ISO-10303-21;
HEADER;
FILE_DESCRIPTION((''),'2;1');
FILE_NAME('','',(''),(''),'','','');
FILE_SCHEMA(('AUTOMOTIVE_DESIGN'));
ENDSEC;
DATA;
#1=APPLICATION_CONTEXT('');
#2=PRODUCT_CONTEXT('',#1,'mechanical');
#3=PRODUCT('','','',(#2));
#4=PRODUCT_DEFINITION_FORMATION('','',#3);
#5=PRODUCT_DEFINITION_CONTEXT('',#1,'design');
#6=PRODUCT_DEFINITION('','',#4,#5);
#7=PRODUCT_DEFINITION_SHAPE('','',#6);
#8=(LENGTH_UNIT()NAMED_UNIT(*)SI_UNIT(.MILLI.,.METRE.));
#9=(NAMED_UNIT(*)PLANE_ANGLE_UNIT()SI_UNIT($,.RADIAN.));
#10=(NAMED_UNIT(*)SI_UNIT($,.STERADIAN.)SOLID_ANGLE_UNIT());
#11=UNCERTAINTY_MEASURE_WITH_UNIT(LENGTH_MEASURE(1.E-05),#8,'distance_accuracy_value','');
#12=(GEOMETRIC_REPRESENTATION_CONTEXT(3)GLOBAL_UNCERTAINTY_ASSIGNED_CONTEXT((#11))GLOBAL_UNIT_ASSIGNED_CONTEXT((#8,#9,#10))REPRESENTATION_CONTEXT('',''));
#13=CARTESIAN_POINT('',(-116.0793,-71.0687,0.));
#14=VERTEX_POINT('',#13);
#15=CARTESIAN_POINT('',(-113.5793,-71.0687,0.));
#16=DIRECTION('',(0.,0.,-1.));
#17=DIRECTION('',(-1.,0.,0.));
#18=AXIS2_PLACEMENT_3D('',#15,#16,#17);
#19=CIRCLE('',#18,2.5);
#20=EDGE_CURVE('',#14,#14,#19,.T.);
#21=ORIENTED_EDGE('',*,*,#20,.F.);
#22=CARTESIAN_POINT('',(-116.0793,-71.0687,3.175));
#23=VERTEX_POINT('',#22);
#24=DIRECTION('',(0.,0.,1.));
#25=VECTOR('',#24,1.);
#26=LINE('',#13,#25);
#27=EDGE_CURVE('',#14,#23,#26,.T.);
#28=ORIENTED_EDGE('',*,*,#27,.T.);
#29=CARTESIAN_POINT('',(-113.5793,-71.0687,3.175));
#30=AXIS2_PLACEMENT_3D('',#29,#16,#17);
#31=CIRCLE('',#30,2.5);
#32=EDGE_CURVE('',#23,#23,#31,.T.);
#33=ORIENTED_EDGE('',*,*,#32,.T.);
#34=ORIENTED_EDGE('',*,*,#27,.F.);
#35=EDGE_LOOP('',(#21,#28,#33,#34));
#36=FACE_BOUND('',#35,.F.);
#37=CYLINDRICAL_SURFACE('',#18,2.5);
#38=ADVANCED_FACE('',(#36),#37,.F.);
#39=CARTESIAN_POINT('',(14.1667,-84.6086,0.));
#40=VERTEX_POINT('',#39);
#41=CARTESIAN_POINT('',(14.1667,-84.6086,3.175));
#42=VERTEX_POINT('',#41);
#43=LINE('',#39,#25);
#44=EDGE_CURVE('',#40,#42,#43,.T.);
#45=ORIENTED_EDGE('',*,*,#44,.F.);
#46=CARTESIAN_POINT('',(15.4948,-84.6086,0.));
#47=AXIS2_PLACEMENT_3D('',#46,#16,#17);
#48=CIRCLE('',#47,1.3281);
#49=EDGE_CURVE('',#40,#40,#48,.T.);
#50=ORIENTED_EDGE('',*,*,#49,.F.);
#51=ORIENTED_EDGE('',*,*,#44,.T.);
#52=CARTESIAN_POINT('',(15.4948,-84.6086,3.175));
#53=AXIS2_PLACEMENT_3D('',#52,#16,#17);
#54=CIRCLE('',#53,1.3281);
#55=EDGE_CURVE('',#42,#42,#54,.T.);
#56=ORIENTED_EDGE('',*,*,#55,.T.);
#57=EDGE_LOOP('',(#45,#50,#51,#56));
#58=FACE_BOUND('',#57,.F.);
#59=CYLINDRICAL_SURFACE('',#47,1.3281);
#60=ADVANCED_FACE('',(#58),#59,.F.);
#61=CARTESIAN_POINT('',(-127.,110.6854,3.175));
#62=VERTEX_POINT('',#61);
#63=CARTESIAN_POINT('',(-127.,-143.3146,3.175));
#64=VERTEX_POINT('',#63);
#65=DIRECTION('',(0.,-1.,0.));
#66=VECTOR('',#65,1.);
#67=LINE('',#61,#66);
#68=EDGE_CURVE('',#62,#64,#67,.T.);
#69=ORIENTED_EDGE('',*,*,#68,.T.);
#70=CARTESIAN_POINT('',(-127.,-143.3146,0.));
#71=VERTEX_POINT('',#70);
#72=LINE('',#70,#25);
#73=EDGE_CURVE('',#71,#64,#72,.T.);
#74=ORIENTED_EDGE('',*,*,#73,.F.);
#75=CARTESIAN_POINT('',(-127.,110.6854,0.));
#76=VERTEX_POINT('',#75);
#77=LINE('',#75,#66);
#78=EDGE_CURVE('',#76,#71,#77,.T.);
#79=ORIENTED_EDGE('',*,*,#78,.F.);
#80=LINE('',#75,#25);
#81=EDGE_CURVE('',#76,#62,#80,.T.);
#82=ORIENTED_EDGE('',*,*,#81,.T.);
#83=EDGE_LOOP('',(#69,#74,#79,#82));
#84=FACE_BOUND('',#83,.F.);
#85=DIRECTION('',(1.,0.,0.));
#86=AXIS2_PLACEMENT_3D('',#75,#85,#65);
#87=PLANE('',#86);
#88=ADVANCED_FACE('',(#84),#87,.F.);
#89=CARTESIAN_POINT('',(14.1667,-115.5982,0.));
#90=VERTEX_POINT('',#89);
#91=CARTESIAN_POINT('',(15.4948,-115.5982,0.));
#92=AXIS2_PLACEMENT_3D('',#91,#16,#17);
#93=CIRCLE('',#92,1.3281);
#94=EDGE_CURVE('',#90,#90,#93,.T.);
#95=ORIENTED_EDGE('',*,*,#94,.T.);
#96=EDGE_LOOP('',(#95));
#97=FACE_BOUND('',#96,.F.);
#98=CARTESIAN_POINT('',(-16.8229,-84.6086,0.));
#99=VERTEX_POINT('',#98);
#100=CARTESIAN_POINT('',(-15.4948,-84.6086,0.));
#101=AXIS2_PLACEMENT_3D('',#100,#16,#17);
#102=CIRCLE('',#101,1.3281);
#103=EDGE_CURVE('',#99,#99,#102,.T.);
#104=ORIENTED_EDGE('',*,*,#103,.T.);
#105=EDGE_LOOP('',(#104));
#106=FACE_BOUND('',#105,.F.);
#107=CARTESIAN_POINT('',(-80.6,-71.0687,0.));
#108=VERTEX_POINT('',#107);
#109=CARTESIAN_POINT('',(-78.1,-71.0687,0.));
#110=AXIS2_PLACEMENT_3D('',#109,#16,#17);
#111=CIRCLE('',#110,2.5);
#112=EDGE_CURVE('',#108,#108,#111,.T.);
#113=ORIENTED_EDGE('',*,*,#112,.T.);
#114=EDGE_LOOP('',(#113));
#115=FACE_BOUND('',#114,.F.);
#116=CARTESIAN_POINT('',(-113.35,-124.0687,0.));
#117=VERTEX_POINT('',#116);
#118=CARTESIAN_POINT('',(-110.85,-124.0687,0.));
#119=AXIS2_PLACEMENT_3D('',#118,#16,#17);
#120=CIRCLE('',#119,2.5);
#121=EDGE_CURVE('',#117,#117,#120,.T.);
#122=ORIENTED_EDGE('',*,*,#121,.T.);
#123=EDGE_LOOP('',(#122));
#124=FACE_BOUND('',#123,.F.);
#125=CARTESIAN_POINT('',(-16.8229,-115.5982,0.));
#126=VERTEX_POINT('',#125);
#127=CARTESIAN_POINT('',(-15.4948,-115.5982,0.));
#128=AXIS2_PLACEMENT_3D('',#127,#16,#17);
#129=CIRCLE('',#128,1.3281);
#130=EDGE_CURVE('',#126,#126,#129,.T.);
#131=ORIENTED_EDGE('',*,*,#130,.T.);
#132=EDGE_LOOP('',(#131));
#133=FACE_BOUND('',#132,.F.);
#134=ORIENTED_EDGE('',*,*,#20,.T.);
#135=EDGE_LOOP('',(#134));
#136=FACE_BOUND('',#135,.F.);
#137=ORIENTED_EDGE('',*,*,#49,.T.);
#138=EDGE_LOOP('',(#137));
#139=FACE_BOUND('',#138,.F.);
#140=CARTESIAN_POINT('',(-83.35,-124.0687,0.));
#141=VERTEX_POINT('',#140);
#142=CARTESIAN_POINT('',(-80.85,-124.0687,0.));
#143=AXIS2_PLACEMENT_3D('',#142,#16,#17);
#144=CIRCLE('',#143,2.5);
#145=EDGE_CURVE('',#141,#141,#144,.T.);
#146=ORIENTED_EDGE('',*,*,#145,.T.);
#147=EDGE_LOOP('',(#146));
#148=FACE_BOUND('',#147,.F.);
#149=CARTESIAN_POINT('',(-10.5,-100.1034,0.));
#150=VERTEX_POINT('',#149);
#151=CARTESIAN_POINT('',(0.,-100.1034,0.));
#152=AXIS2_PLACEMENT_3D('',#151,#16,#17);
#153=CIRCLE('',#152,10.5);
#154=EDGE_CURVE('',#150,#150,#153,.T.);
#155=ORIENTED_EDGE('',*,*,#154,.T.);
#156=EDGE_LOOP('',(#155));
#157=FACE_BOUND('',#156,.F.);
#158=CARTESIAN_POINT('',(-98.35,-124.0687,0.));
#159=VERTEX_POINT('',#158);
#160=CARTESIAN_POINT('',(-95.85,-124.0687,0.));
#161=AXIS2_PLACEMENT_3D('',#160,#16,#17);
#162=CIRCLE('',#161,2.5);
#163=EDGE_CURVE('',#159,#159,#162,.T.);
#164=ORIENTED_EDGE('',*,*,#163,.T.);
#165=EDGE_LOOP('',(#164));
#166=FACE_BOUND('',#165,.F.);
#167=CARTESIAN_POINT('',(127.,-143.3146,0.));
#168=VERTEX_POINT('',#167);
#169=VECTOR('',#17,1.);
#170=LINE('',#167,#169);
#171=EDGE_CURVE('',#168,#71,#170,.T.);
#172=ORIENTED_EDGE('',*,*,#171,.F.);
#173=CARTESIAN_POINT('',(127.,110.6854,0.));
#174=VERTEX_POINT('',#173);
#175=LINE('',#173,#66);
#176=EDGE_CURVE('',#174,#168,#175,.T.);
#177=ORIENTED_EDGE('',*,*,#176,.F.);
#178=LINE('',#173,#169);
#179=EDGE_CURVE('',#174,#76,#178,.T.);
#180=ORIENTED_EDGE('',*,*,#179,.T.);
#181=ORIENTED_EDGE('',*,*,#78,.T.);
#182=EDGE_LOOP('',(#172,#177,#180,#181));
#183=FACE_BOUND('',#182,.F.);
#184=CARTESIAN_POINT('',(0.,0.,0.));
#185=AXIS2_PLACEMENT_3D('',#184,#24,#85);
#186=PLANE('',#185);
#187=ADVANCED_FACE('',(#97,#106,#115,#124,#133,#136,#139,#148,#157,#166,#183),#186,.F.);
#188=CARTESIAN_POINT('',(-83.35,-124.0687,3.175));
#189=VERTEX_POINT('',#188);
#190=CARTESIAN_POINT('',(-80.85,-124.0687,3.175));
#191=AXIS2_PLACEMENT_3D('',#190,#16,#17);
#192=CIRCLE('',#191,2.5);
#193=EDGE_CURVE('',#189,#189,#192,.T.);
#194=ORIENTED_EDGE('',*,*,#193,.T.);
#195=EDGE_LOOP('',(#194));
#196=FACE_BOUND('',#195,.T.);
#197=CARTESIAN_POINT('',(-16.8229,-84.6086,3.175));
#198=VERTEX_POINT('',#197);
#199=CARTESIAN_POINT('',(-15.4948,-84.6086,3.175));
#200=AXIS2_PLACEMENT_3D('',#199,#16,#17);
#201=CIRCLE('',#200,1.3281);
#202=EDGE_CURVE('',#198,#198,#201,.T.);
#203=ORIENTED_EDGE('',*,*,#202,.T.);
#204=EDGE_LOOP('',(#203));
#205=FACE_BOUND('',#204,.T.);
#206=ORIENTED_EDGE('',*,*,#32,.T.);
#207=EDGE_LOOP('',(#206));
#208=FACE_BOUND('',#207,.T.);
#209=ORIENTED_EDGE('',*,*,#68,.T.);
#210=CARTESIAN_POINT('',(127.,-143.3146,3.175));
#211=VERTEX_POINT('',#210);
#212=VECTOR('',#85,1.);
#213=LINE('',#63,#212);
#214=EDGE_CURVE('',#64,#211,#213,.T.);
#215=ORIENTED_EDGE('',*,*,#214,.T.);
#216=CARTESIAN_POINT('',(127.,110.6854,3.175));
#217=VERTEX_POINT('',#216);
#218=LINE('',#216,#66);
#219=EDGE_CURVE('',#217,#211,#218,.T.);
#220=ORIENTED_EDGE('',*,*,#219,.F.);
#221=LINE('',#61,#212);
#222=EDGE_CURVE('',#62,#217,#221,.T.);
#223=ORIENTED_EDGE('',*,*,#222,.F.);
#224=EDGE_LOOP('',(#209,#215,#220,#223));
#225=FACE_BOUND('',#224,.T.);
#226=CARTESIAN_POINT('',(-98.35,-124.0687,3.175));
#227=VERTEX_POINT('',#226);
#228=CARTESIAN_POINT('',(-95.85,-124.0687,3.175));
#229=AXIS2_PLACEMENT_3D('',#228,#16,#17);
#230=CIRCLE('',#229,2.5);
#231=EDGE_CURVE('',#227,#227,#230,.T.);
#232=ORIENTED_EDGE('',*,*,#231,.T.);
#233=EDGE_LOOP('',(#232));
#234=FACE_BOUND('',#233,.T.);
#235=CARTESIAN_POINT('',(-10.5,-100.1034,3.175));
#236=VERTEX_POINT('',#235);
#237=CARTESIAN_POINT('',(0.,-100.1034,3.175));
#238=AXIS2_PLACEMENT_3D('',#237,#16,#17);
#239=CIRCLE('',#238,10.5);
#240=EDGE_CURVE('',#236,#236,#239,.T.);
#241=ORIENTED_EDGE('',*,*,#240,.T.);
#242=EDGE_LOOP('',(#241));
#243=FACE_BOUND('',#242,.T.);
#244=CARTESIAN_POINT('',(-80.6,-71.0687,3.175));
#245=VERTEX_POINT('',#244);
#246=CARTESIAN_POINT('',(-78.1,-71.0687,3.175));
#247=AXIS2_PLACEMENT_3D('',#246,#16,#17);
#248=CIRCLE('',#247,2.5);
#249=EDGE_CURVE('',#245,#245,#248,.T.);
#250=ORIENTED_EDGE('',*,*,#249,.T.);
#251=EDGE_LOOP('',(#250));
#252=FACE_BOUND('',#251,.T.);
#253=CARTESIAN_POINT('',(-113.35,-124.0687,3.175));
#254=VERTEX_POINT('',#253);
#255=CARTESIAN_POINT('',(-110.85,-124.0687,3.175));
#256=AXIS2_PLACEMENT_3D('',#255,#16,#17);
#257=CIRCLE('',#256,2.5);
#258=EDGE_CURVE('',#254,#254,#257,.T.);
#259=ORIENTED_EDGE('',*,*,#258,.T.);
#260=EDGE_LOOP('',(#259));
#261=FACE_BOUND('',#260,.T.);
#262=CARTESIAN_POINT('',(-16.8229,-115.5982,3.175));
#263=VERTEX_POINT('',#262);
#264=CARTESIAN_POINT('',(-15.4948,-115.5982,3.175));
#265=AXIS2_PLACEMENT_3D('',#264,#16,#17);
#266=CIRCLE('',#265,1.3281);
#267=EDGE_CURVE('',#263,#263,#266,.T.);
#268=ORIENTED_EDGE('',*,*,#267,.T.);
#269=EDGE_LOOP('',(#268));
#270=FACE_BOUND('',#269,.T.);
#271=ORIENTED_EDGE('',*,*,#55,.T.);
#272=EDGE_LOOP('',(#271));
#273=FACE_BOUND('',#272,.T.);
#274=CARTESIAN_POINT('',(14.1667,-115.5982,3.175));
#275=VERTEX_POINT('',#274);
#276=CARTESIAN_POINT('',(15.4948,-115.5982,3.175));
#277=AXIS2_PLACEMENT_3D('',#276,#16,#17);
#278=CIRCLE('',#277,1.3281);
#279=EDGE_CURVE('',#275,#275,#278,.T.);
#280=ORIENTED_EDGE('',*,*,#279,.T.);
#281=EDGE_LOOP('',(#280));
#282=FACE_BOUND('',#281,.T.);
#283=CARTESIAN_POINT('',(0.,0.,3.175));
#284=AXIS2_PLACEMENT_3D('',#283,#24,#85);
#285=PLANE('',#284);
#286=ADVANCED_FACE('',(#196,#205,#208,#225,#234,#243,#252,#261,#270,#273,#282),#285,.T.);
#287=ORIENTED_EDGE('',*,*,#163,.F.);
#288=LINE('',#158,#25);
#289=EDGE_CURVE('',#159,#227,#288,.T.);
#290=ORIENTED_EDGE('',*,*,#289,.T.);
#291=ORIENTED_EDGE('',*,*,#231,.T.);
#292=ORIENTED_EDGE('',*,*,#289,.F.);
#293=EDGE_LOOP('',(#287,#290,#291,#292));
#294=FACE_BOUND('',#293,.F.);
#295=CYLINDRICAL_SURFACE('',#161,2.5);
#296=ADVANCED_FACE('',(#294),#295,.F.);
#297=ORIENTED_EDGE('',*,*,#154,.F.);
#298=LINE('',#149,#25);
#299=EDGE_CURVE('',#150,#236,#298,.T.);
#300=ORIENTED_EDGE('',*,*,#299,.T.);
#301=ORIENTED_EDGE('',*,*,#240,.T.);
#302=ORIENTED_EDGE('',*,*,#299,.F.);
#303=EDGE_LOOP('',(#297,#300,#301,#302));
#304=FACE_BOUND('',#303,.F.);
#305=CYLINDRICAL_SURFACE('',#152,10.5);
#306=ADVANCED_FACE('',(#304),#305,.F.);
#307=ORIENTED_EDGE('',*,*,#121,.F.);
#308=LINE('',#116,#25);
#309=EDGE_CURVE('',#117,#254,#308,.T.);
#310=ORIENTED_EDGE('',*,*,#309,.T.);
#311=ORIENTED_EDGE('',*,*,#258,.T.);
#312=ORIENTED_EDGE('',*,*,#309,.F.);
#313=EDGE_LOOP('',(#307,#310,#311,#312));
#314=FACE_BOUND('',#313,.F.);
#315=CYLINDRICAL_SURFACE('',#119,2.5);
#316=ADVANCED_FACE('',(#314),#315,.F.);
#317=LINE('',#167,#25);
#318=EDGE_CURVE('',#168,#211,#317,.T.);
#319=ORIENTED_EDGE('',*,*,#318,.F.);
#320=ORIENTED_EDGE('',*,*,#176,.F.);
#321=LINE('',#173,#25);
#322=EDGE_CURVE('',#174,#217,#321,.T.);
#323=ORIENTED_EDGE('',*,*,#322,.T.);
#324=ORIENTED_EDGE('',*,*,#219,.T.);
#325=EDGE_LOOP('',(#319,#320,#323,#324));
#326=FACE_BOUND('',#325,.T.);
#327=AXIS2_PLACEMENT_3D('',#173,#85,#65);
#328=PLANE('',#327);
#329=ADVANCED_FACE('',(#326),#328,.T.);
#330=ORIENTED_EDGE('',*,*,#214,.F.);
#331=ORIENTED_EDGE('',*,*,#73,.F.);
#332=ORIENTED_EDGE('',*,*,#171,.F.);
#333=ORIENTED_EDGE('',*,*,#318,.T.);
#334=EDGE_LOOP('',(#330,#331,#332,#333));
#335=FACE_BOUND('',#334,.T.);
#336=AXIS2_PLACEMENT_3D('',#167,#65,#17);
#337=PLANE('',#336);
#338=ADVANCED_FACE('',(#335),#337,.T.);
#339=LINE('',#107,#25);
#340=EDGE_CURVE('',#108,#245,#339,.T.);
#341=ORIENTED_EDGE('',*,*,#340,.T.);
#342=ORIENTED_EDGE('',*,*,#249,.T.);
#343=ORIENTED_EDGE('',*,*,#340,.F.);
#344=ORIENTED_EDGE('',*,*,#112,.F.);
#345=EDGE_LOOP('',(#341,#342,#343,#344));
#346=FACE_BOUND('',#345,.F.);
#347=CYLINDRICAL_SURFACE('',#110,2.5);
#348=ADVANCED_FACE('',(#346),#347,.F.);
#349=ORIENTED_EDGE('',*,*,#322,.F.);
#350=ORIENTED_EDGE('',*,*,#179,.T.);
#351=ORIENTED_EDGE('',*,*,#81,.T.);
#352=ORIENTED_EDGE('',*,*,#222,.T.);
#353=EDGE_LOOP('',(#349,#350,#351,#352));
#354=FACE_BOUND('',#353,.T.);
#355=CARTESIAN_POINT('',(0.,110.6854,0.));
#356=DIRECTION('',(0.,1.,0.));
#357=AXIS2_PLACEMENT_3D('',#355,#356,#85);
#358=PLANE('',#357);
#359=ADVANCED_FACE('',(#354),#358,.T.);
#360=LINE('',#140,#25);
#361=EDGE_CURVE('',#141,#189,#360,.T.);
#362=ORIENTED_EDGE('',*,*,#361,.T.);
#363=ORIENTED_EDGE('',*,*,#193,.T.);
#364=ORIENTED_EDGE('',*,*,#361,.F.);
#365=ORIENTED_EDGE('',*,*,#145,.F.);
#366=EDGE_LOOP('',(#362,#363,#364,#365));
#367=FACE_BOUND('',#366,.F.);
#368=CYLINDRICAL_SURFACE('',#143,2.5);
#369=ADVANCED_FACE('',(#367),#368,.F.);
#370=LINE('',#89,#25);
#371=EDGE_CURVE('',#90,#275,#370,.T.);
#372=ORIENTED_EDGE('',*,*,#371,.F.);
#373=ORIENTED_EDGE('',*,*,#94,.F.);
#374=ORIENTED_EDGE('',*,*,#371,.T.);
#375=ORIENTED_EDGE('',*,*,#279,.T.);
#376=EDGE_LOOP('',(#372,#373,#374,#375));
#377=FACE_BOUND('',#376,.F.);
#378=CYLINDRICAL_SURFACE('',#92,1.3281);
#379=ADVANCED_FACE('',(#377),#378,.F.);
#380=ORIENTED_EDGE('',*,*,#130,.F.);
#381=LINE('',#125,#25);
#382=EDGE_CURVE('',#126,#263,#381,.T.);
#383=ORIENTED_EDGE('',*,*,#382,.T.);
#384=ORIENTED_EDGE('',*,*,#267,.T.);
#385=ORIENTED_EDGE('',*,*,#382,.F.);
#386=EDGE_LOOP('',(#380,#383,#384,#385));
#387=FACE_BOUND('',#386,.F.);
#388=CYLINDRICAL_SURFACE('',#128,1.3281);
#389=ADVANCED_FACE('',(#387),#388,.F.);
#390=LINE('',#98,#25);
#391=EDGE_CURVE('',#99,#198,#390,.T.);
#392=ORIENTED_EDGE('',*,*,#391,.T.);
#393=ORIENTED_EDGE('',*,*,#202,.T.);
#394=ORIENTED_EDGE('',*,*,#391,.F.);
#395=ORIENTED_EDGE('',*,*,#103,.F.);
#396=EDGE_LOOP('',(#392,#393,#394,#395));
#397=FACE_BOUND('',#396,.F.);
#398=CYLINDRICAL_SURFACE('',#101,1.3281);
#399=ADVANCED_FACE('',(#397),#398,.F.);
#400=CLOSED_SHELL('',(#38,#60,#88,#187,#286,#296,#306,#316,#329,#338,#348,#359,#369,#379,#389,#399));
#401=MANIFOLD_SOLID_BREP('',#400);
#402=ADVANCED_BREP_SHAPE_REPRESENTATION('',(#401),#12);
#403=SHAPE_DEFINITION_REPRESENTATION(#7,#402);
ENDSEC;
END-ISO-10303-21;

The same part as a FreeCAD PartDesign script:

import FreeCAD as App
import Part
import Sketcher
from FreeCAD import Vector


def add_polygon(sketch, points):
    """Adds a closed chain of lines whose ends are joined by coincident constraints."""
    first, n = sketch.GeometryCount, len(points)
    for a, b in zip(points, points[1:] + points[:1]):
        sketch.addGeometry(Part.LineSegment(App.Vector(*a, 0), App.Vector(*b, 0)), False)
    for i in range(n):
        sketch.addConstraint(Sketcher.Constraint("Coincident", first + i, 2, first + (i + 1) % n, 1))

doc = App.newDocument("Part")
body = doc.addObject("PartDesign::Body", "Body")

# Sketch on XY plane
sketch1 = body.newObject("Sketcher::SketchObject", "Sketch")
sketch1.AttachmentSupport = (doc.getObject("XY_Plane"), [""])
sketch1.MapMode = "FlatFace"
add_polygon(sketch1, [(127, 110.6854), (-127, 110.6854), (-127, -143.3146), (127, -143.3146)])  # lines 0-3
sketch1.addConstraint(Sketcher.Constraint("Horizontal", 0))
sketch1.addConstraint(Sketcher.Constraint("Vertical", 1))
sketch1.addConstraint(Sketcher.Constraint("Horizontal", 2))
sketch1.addConstraint(Sketcher.Constraint("Vertical", 3))
sketch1.addConstraint(Sketcher.Constraint("Equal", 2, 1))
sketch1.addConstraint(Sketcher.Constraint("DistanceX", 0, 2, 0, 1, 254.0))
sketch1.addConstraint(Sketcher.Constraint("DistanceX", 0, 2, -1, 1, 127.0))
sketch1.addConstraint(Sketcher.Constraint("DistanceY", -1, 1, 0, 2, 110.6854))
pad1 = body.newObject("PartDesign::Pad", "Pad")
pad1.Profile = sketch1
pad1.Length = 3.175

# Sketch on XY plane
sketch2 = body.newObject("Sketcher::SketchObject", "Sketch001")
sketch2.AttachmentSupport = (doc.getObject("XY_Plane"), [""])
sketch2.MapMode = "FlatFace"
sketch2.addGeometry(Part.Circle(Vector(0, -100.1034, 0), Vector(0, 0, 1), 10.5), False)
sketch2.addGeometry(Part.Circle(Vector(15.4948, -84.6086, 0), Vector(0, 0, 1), 1.3281), False)
sketch2.addGeometry(Part.Circle(Vector(-15.4948, -84.6086, 0), Vector(0, 0, 1), 1.3281), False)
sketch2.addGeometry(Part.Circle(Vector(-15.4948, -115.5982, 0), Vector(0, 0, 1), 1.3281), False)
sketch2.addGeometry(Part.Circle(Vector(15.4948, -115.5982, 0), Vector(0, 0, 1), 1.3281), False)
sketch2.addConstraint(Sketcher.Constraint("Equal", 1, 2))
sketch2.addConstraint(Sketcher.Constraint("Equal", 2, 3))
sketch2.addConstraint(Sketcher.Constraint("Equal", 3, 4))
sketch2.addConstraint(Sketcher.Constraint("Symmetric", 1, 3, 2, 3, -2))
sketch2.addConstraint(Sketcher.Constraint("Symmetric", 3, 3, 4, 3, -2))
sketch2.addConstraint(Sketcher.Constraint("PointOnObject", 0, 3, -2))
sketch2.addConstraint(Sketcher.Constraint("Vertical", 2, 3, 3, 3))
sketch2.addConstraint(Sketcher.Constraint("Diameter", 0, 21.0))
sketch2.addConstraint(Sketcher.Constraint("Diameter", 1, 2.6562))
sketch2.addConstraint(Sketcher.Constraint("DistanceY", 0, 3, -1, 1, 100.1034))
sketch2.addConstraint(Sketcher.Constraint("DistanceX", -1, 1, 1, 3, 15.4948))
sketch2.addConstraint(Sketcher.Constraint("DistanceY", 1, 3, -1, 1, 84.6086))
sketch2.addConstraint(Sketcher.Constraint("DistanceY", 3, 3, -1, 1, 115.5982))
pocket1 = body.newObject("PartDesign::Pocket", "Pocket")
pocket1.Profile = sketch2
pocket1.Length = 3.175
pocket1.Reversed = True

# Sketch on XY plane
sketch3 = body.newObject("Sketcher::SketchObject", "Sketch002")
sketch3.AttachmentSupport = (doc.getObject("XY_Plane"), [""])
sketch3.MapMode = "FlatFace"
sketch3.addGeometry(Part.Circle(Vector(-110.85, -124.0687, 0), Vector(0, 0, 1), 2.5), False)
sketch3.addGeometry(Part.Circle(Vector(-78.1, -71.0687, 0), Vector(0, 0, 1), 2.5), False)
sketch3.addGeometry(Part.Circle(Vector(-113.5793, -71.0687, 0), Vector(0, 0, 1), 2.5), False)
sketch3.addGeometry(Part.Circle(Vector(-95.85, -124.0687, 0), Vector(0, 0, 1), 2.5), False)
sketch3.addGeometry(Part.Circle(Vector(-80.85, -124.0687, 0), Vector(0, 0, 1), 2.5), False)
sketch3.addConstraint(Sketcher.Constraint("Equal", 0, 1))
sketch3.addConstraint(Sketcher.Constraint("Equal", 1, 2))
sketch3.addConstraint(Sketcher.Constraint("Equal", 2, 3))
sketch3.addConstraint(Sketcher.Constraint("Equal", 3, 4))
sketch3.addConstraint(Sketcher.Constraint("Horizontal", 1, 3, 2, 3))
sketch3.addConstraint(Sketcher.Constraint("Horizontal", 0, 3, 3, 3))
sketch3.addConstraint(Sketcher.Constraint("Horizontal", 3, 3, 4, 3))
sketch3.addConstraint(Sketcher.Constraint("Diameter", 0, 5.0))
sketch3.addConstraint(Sketcher.Constraint("DistanceY", 0, 3, 1, 3, 53.0))
sketch3.addConstraint(Sketcher.Constraint("DistanceX", 0, 3, 3, 3, 15.0))
sketch3.addConstraint(Sketcher.Constraint("DistanceX", 3, 3, 4, 3, 15.0))
sketch3.addConstraint(Sketcher.Constraint("DistanceX", 1, 3, -1, 1, 78.1))
sketch3.addConstraint(Sketcher.Constraint("DistanceX", 0, 3, -1, 1, 110.85))
sketch3.addConstraint(Sketcher.Constraint("DistanceY", 0, 3, -1, 1, 124.0687))
sketch3.addConstraint(Sketcher.Constraint("DistanceX", 2, 3, -1, 1, 113.5793))
pocket2 = body.newObject("PartDesign::Pocket", "Pocket001")
pocket2.Profile = sketch3
pocket2.Length = 3.175
pocket2.Reversed = True

doc.recompute()
